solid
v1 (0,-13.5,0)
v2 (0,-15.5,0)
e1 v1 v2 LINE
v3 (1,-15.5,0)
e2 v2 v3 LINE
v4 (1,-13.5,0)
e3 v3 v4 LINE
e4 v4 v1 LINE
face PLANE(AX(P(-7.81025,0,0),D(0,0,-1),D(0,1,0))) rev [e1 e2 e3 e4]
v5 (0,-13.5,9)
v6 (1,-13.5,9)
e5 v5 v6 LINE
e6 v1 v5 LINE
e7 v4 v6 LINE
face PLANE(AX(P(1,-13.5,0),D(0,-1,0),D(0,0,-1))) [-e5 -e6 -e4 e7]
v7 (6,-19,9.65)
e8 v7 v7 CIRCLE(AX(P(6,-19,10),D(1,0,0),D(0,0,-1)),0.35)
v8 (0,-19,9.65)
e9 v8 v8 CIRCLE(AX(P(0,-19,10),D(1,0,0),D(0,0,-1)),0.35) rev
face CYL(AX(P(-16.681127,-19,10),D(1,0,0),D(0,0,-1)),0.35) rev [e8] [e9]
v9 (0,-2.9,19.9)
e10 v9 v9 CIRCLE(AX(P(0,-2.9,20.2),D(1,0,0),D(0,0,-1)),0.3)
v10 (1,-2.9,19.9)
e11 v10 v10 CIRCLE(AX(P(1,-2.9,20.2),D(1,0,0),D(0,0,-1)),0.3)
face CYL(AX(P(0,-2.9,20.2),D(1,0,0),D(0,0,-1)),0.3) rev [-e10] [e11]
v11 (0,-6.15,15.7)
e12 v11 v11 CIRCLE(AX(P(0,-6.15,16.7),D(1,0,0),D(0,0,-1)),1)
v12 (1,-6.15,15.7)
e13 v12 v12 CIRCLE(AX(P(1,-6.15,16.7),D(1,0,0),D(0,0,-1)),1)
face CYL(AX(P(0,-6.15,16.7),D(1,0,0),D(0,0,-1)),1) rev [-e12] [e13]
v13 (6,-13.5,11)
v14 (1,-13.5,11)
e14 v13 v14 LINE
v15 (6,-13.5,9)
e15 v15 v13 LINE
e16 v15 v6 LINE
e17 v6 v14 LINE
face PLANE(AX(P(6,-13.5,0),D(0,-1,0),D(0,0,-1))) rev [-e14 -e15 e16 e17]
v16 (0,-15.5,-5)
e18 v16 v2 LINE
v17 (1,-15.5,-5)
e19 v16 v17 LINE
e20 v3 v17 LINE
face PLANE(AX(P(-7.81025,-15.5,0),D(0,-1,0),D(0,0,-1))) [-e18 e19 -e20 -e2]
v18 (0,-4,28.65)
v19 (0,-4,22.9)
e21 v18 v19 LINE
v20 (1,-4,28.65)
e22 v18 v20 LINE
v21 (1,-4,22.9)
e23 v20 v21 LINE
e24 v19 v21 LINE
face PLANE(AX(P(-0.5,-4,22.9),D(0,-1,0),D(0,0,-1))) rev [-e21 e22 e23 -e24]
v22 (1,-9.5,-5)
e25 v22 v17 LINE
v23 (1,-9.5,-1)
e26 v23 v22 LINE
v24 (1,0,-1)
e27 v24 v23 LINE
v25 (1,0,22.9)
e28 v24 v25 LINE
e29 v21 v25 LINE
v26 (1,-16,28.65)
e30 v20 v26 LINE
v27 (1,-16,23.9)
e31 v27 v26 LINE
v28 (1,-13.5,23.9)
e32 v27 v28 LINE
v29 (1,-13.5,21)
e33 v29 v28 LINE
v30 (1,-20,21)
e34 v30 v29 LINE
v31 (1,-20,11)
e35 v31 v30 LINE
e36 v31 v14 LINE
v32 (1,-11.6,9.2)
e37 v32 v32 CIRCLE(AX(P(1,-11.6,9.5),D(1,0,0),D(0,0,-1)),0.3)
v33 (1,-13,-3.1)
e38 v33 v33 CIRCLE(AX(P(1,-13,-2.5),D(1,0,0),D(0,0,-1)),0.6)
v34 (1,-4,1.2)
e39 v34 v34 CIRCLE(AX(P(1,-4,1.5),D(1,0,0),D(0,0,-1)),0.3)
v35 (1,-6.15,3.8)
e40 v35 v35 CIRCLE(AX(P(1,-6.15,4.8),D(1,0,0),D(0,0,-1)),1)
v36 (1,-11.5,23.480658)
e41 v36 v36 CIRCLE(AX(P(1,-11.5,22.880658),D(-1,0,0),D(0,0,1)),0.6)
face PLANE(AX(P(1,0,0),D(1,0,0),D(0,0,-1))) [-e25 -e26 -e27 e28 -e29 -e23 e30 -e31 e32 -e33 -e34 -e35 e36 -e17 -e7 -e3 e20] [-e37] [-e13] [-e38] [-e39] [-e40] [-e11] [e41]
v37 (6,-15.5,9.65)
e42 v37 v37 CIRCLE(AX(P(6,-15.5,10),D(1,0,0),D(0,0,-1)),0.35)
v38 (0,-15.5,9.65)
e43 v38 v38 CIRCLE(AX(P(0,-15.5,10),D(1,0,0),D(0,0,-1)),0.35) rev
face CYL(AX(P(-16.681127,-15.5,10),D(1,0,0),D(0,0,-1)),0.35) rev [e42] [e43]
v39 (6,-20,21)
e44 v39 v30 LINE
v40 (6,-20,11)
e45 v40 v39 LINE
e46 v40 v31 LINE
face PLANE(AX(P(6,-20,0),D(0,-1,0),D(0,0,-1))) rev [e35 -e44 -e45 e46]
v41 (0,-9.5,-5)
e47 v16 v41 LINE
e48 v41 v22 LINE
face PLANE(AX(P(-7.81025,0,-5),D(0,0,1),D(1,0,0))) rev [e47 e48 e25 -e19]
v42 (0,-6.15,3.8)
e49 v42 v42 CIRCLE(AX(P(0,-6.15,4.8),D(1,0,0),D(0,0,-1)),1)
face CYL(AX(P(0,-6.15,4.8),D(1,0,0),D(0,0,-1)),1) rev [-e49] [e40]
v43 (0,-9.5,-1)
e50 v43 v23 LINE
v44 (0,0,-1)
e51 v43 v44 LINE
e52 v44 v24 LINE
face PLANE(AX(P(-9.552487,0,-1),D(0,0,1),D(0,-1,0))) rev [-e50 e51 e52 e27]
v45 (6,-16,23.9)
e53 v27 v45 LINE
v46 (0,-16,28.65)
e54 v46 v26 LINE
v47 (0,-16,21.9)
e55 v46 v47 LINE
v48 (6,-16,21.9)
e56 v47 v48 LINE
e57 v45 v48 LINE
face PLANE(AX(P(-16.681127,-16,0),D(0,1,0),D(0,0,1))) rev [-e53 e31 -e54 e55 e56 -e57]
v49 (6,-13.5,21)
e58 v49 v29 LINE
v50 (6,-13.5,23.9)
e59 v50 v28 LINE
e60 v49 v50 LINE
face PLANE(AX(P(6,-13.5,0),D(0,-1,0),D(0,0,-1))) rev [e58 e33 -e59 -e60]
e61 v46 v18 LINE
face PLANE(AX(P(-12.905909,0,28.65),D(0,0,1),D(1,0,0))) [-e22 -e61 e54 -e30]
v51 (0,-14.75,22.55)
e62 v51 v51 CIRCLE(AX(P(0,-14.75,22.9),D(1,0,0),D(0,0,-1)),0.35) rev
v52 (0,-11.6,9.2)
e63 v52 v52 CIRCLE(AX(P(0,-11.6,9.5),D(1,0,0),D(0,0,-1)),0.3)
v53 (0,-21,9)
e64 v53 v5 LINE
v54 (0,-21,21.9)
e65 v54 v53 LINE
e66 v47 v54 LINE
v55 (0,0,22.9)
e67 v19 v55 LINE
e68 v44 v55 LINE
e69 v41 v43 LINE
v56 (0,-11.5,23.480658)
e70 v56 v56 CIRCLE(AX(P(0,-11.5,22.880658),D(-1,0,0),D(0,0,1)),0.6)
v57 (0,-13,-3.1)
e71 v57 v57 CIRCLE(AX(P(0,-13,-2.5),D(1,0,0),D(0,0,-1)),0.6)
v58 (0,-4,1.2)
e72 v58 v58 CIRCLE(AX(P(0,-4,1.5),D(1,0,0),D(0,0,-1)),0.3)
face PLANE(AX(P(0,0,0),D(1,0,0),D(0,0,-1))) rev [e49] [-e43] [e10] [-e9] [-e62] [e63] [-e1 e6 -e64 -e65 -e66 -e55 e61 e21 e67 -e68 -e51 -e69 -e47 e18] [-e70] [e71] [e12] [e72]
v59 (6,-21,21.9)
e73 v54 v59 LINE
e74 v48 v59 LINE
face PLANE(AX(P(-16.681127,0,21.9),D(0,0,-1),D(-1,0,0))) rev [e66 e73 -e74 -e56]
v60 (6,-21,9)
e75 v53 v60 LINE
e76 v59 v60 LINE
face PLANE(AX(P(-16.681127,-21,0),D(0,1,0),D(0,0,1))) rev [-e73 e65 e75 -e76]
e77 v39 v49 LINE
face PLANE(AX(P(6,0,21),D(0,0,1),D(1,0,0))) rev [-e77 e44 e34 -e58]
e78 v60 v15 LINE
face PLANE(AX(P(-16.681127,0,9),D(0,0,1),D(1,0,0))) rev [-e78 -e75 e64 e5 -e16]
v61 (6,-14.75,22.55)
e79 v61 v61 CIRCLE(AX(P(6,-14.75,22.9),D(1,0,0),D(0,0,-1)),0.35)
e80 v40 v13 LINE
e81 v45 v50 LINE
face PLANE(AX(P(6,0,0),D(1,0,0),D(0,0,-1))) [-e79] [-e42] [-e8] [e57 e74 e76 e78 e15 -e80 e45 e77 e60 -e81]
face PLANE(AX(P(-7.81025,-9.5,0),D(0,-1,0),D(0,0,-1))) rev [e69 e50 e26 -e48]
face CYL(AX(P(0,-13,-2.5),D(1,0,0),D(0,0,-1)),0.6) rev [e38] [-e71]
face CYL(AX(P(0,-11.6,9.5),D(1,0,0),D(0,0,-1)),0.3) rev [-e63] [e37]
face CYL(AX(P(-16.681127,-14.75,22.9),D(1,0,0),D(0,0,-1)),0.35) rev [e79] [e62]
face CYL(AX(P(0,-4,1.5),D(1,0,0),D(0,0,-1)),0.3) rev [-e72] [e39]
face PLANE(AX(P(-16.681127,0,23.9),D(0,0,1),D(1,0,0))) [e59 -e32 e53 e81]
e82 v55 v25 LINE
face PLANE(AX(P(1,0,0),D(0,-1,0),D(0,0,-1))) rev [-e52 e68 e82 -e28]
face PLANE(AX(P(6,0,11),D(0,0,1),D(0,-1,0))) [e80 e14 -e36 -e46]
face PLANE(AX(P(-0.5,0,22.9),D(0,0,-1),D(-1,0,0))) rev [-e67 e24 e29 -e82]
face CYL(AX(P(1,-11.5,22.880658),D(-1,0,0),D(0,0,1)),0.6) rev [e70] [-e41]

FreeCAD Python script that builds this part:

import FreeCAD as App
import Part
import Sketcher
Q = App.Units.Quantity

doc = App.newDocument("Part")
body = doc.addObject("PartDesign::Body", "Body")

sketch1 = doc.addObject("Sketcher::SketchObject", "Sketch")
body.addObject(sketch1)
sketch1.AttachmentSupport = (doc.YZ_Plane, [""])
sketch1.MapMode = "FlatFace"
sketch1.addGeometry([
    Part.LineSegment(App.Vector(0, 28, 0), App.Vector(-14, 28, 0)),
    Part.LineSegment(App.Vector(-14, 28, 0), App.Vector(-14, 0, 0)),
    Part.LineSegment(App.Vector(-14, 0, 0), App.Vector(0, 0, 0)),
    Part.LineSegment(App.Vector(0, 0, 0), App.Vector(0, 28, 0)),
], False)
sketch1.addConstraint([
    Sketcher.Constraint("Coincident", 0, 2, 1, 1),
    Sketcher.Constraint("Coincident", 1, 2, 2, 1),
    Sketcher.Constraint("Coincident", 2, 2, 3, 1),
    Sketcher.Constraint("Coincident", 3, 2, 0, 1),
    Sketcher.Constraint("Horizontal", 0),
    Sketcher.Constraint("Vertical", 1),
    Sketcher.Constraint("Horizontal", 2),
    Sketcher.Constraint("Vertical", 3),
    Sketcher.Constraint("Coincident", 2, 2, -1, 1),
    Sketcher.Constraint("DistanceY", 1, 2, 1, 1, Q("28 mm")),
    Sketcher.Constraint("DistanceX", 0, 2, 0, 1, Q("13.5 mm")),
])
pad1 = doc.addObject("PartDesign::Pad", "Pad")
body.addObject(pad1)
pad1.Profile = sketch1
pad1.Length = 1

sketch2 = doc.addObject("Sketcher::SketchObject", "Sketch001")
body.addObject(sketch2)
sketch2.AttachmentSupport = (doc.YZ_Plane, [""])
sketch2.MapMode = "FlatFace"
sketch2.AttachmentOffset = App.Placement(App.Vector(0, 0, 1), App.Rotation())
sketch2.addGeometry([
    Part.Circle(App.Vector(-4, 1.5, 0), App.Vector(0, 0, 1), 0.3),
    Part.Circle(App.Vector(-2.9, 20.2, 0), App.Vector(0, 0, 1), 0.3),
    Part.Circle(App.Vector(-11.6, 9.5, 0), App.Vector(0, 0, 1), 0.3),
], False)
sketch2.addConstraint([
    Sketcher.Constraint("Equal", 0, 1),
    Sketcher.Constraint("Equal", 1, 2),
    Sketcher.Constraint("Diameter", 0, Q("0.6 mm")),
    Sketcher.Constraint("DistanceX", 0, 3, -1, 1, Q("4 mm")),
    Sketcher.Constraint("DistanceY", 0, 3, 2, 3, Q("8 mm")),
    Sketcher.Constraint("DistanceY", -1, 1, 0, 3, Q("1.5 mm")),
    Sketcher.Constraint("DistanceX", 1, 3, -1, 1, Q("2.9 mm")),
    Sketcher.Constraint("DistanceY", -1, 1, 1, 3, Q("20.2 mm")),
    Sketcher.Constraint("DistanceX", 2, 3, -1, 1, Q("11.6 mm")),
])
pocket1 = doc.addObject("PartDesign::Pocket", "Pocket")
body.addObject(pocket1)
pocket1.Profile = sketch2
pocket1.Type = "ThroughAll"

sketch3 = doc.addObject("Sketcher::SketchObject", "Sketch002")
body.addObject(sketch3)
sketch3.AttachmentSupport = (doc.YZ_Plane, [""])
sketch3.MapMode = "FlatFace"
sketch3.AttachmentOffset = App.Placement(App.Vector(0, 0, 1), App.Rotation())
sketch3.addGeometry([
    Part.LineSegment(App.Vector(-10, 0, 0), App.Vector(-16, 0, 0)),
    Part.LineSegment(App.Vector(-16, 0, 0), App.Vector(-16, -5, 0)),
    Part.LineSegment(App.Vector(-16, -5, 0), App.Vector(-10, -5, 0)),
    Part.LineSegment(App.Vector(-10, -5, 0), App.Vector(-10, 0, 0)),
], False)
sketch3.addConstraint([
    Sketcher.Constraint("Coincident", 0, 2, 1, 1),
    Sketcher.Constraint("Coincident", 1, 2, 2, 1),
    Sketcher.Constraint("Coincident", 2, 2, 3, 1),
    Sketcher.Constraint("Coincident", 3, 2, 0, 1),
    Sketcher.Constraint("Horizontal", 0),
    Sketcher.Constraint("Vertical", 1),
    Sketcher.Constraint("Horizontal", 2),
    Sketcher.Constraint("Vertical", 3),
    Sketcher.Constraint("PointOnObject", 0, 2, -1),
    Sketcher.Constraint("DistanceX", 0, 2, 0, 1, Q("6 mm")),
    Sketcher.Constraint("DistanceY", 1, 2, 1, 1, Q("5 mm")),
    Sketcher.Constraint("DistanceX", 0, 2, -1, 1, Q("15.5 mm")),
])
pad2 = doc.addObject("PartDesign::Pad", "Pad001")
body.addObject(pad2)
pad2.Profile = sketch3
pad2.Length = 1
pad2.Reversed = True

sketch4 = doc.addObject("Sketcher::SketchObject", "Sketch003")
body.addObject(sketch4)
sketch4.AttachmentSupport = (doc.YZ_Plane, [""])
sketch4.MapMode = "FlatFace"
sketch4.AttachmentOffset = App.Placement(App.Vector(0, 0, 1), App.Rotation())
sketch4.addGeometry(Part.Circle(App.Vector(-13, -2.5, 0), App.Vector(0, 0, 1), 0.6), False)
sketch4.addConstraint([
    Sketcher.Constraint("Diameter", 0, Q("1.2 mm")),
    Sketcher.Constraint("DistanceX", 0, 3, -1, 1, Q("13 mm")),
    Sketcher.Constraint("DistanceY", 0, 3, -1, 1, Q("2.5 mm")),
])
pocket2 = doc.addObject("PartDesign::Pocket", "Pocket001")
body.addObject(pocket2)
pocket2.Profile = sketch4
pocket2.Type = "ThroughAll"

sketch5 = doc.addObject("Sketcher::SketchObject", "Sketch004")
body.addObject(sketch5)
sketch5.AttachmentSupport = (doc.YZ_Plane, [""])
sketch5.MapMode = "FlatFace"
sketch5.AttachmentOffset = App.Placement(App.Vector(0, 0, 1), App.Rotation())
sketch5.addGeometry([
    Part.Circle(App.Vector(-6.2, 4.8, 0), App.Vector(0, 0, 1), 1),
    Part.Circle(App.Vector(-6.2, 16.7, 0), App.Vector(0, 0, 1), 1),
], False)
sketch5.addConstraint([
    Sketcher.Constraint("Equal", 0, 1),
    Sketcher.Constraint("Vertical", 0, 3, 1, 3),
    Sketcher.Constraint("Diameter", 0, Q("2 mm")),
    Sketcher.Constraint("DistanceY", -1, 1, 0, 3, Q("4.8 mm")),
    Sketcher.Constraint("DistanceY", -1, 1, 1, 3, Q("16.7 mm")),
    Sketcher.Constraint("DistanceX", 0, 3, -1, 1, Q("6.15 mm")),
])
pocket3 = doc.addObject("PartDesign::Pocket", "Pocket002")
body.addObject(pocket3)
pocket3.Profile = sketch5
pocket3.Type = "ThroughAll"

sketch6 = doc.addObject("Sketcher::SketchObject", "Sketch005")
body.addObject(sketch6)
sketch6.AttachmentSupport = (doc.YZ_Plane, [""])
sketch6.MapMode = "FlatFace"
sketch6.AttachmentOffset = App.Placement(App.Vector(0, 0, 1), App.Rotation())
sketch6.addGeometry([
    Part.LineSegment(App.Vector(0, 29.9, 0), App.Vector(-4, 29.9, 0)),
    Part.LineSegment(App.Vector(-4, 29.9, 0), App.Vector(-4, 22.9, 0)),
    Part.LineSegment(App.Vector(-4, 22.9, 0), App.Vector(0, 22.9, 0)),
    Part.LineSegment(App.Vector(0, 22.9, 0), App.Vector(0, 29.9, 0)),
], False)
sketch6.addConstraint([
    Sketcher.Constraint("Coincident", 0, 2, 1, 1),
    Sketcher.Constraint("Coincident", 1, 2, 2, 1),
    Sketcher.Constraint("Coincident", 2, 2, 3, 1),
    Sketcher.Constraint("Coincident", 3, 2, 0, 1),
    Sketcher.Constraint("Horizontal", 0),
    Sketcher.Constraint("Vertical", 1),
    Sketcher.Constraint("Horizontal", 2),
    Sketcher.Constraint("Vertical", 3),
    Sketcher.Constraint("PointOnObject", 2, 2, -2),
    Sketcher.Constraint("DistanceX", 0, 2, 0, 1, Q("4 mm")),
    Sketcher.Constraint("DistanceY", 1, 2, 1, 1, Q("7 mm")),
    Sketcher.Constraint("DistanceY", -1, 1, 0, 2, Q("29.9 mm")),
])
pocket4 = doc.addObject("PartDesign::Pocket", "Pocket003")
body.addObject(pocket4)
pocket4.Profile = sketch6
pocket4.Length = 1.5

sketch7 = doc.addObject("Sketcher::SketchObject", "Sketch006")
body.addObject(sketch7)
sketch7.AttachmentSupport = (doc.YZ_Plane, [""])
sketch7.MapMode = "FlatFace"
sketch7.addGeometry(Part.Circle(App.Vector(-11.5, 22.9, 0), App.Vector(0, 0, 1), 0.6), False)
sketch7.addConstraint([
    Sketcher.Constraint("Diameter", 0, Q("1.2 mm")),
    Sketcher.Constraint("DistanceX", 0, 3, -1, 1, Q("11.5 mm")),
    Sketcher.Constraint("DistanceY", -1, 1, 0, 3, Q("22.880658 mm")),
])
pocket5 = doc.addObject("PartDesign::Pocket", "Pocket004")
body.addObject(pocket5)
pocket5.Profile = sketch7
pocket5.Type = "ThroughAll"
pocket5.Reversed = True

sketch8 = doc.addObject("Sketcher::SketchObject", "Sketch007")
body.addObject(sketch8)
sketch8.AttachmentSupport = (doc.YZ_Plane, [""])
sketch8.MapMode = "FlatFace"
sketch8.AttachmentOffset = App.Placement(App.Vector(0, 0, 1), App.Rotation())
sketch8.addGeometry([
    Part.LineSegment(App.Vector(0, 0, 0), App.Vector(-9.5, 0, 0)),
    Part.LineSegment(App.Vector(-9.5, 0, 0), App.Vector(-9.5, -1, 0)),
    Part.LineSegment(App.Vector(-9.5, -1, 0), App.Vector(0, -1, 0)),
    Part.LineSegment(App.Vector(0, -1, 0), App.Vector(0, 0, 0)),
], False)
sketch8.addConstraint([
    Sketcher.Constraint("Coincident", 0, 2, 1, 1),
    Sketcher.Constraint("Coincident", 1, 2, 2, 1),
    Sketcher.Constraint("Coincident", 2, 2, 3, 1),
    Sketcher.Constraint("Coincident", 3, 2, 0, 1),
    Sketcher.Constraint("Horizontal", 0),
    Sketcher.Constraint("Vertical", 1),
    Sketcher.Constraint("Horizontal", 2),
    Sketcher.Constraint("Vertical", 3),
    Sketcher.Constraint("Coincident", 3, 2, -1, 1),
    Sketcher.Constraint("DistanceY", 1, 2, 1, 1, Q("1 mm")),
    Sketcher.Constraint("DistanceX", 0, 2, 0, 1, Q("9.5 mm")),
])
pad3 = doc.addObject("PartDesign::Pad", "Pad002")
body.addObject(pad3)
pad3.Profile = sketch8
pad3.Length = 1
pad3.Reversed = True

sketch9 = doc.addObject("Sketcher::SketchObject", "Sketch008")
body.addObject(sketch9)
sketch9.AttachmentSupport = (doc.YZ_Plane, [""])
sketch9.MapMode = "FlatFace"
sketch9.AttachmentOffset = App.Placement(App.Vector(0, 0, 1), App.Rotation())
sketch9.addGeometry([
    Part.LineSegment(App.Vector(-10, 11, 0), App.Vector(-10, 21, 0)),
    Part.LineSegment(App.Vector(-10, 21, 0), App.Vector(-13.5, 21, 0)),
    Part.LineSegment(App.Vector(-13.5, 21, 0), App.Vector(-13.5, 23.9, 0)),
    Part.LineSegment(App.Vector(-13.5, 23.9, 0), App.Vector(-16, 23.9, 0)),
    Part.LineSegment(App.Vector(-16, 23.9, 0), App.Vector(-16, 21.9, 0)),
    Part.LineSegment(App.Vector(-16, 21.9, 0), App.Vector(-21, 21.9, 0)),
    Part.LineSegment(App.Vector(-21, 21.9, 0), App.Vector(-21, 9, 0)),
    Part.LineSegment(App.Vector(-21, 9, 0), App.Vector(-13.5, 9, 0)),
    Part.LineSegment(App.Vector(-13.5, 9, 0), App.Vector(-13.5, 11, 0)),
    Part.LineSegment(App.Vector(-13.5, 11, 0), App.Vector(-10, 11, 0)),
    Part.Circle(App.Vector(-15.5, 10, 0), App.Vector(0, 0, 1), 0.35),
    Part.Circle(App.Vector(-19, 10, 0), App.Vector(0, 0, 1), 0.35),
    Part.Circle(App.Vector(-14.75, 22.9, 0), App.Vector(0, 0, 1), 0.35),
], False)
sketch9.addConstraint([
    Sketcher.Constraint("Coincident", 0, 2, 1, 1),
    Sketcher.Constraint("Coincident", 1, 2, 2, 1),
    Sketcher.Constraint("Coincident", 2, 2, 3, 1),
    Sketcher.Constraint("Coincident", 3, 2, 4, 1),
    Sketcher.Constraint("Coincident", 4, 2, 5, 1),
    Sketcher.Constraint("Coincident", 5, 2, 6, 1),
    Sketcher.Constraint("Coincident", 6, 2, 7, 1),
    Sketcher.Constraint("Coincident", 7, 2, 8, 1),
    Sketcher.Constraint("Coincident", 8, 2, 9, 1),
    Sketcher.Constraint("Coincident", 9, 2, 0, 1),
    Sketcher.Constraint("Vertical", 0),
    Sketcher.Constraint("Horizontal", 1),
    Sketcher.Constraint("Vertical", 2),
    Sketcher.Constraint("Horizontal", 3),
    Sketcher.Constraint("Vertical", 4),
    Sketcher.Constraint("Horizontal", 5),
    Sketcher.Constraint("Vertical", 6),
    Sketcher.Constraint("Horizontal", 7),
    Sketcher.Constraint("Vertical", 8),
    Sketcher.Constraint("Horizontal", 9),
    Sketcher.Constraint("Equal", 10, 11),
    Sketcher.Constraint("Equal", 11, 12),
    Sketcher.Constraint("Horizontal", 10, 3, 11, 3),
    Sketcher.Constraint("Vertical", 2, 2, 7, 2),
    Sketcher.Constraint("Equal", 4, 8),
    Sketcher.Constraint("Diameter", 10, Q("0.7 mm")),
    Sketcher.Constraint("DistanceX", 5, 2, 5, 1, Q("5 mm")),
    Sketcher.Constraint("DistanceY", 0, 1, 0, 2, Q("10 mm")),
    Sketcher.Constraint("DistanceY", 4, 2, 4, 1, Q("2 mm")),
    Sketcher.Constraint("DistanceX", 1, 2, 1, 1, Q("3.5 mm")),
    Sketcher.Constraint("DistanceX", 3, 2, 3, 1, Q("2.5 mm")),
    Sketcher.Constraint("DistanceY", 2, 1, 2, 2, Q("2.9 mm")),
    Sketcher.Constraint("DistanceY", -1, 1, 10, 3, Q("10 mm")),
    Sketcher.Constraint("DistanceX", 11, 3, -1, 1, Q("19 mm")),
    Sketcher.Constraint("DistanceX", 0, 2, -1, 1, Q("10 mm")),
    Sketcher.Constraint("DistanceY", -1, 1, 0, 2, Q("21 mm")),
    Sketcher.Constraint("DistanceX", 10, 3, 1, 2, Q("2 mm")),
    Sketcher.Constraint("DistanceY", 12, 3, 2, 2, Q("1 mm")),
    Sketcher.Constraint("DistanceX", 12, 3, -1, 1, Q("14.75 mm")),
])
pad4 = doc.addObject("PartDesign::Pad", "Pad003")
body.addObject(pad4)
pad4.Profile = sketch9
pad4.Length = 1
pad4.Reversed = True

sketch10 = doc.addObject("Sketcher::SketchObject", "Sketch009")
body.addObject(sketch10)
sketch10.AttachmentSupport = (doc.YZ_Plane, [""])
sketch10.MapMode = "FlatFace"
sketch10.AttachmentOffset = App.Placement(App.Vector(0, 0, 6), App.Rotation())
sketch10.addGeometry([
    Part.LineSegment(App.Vector(-13.5, 21, 0), App.Vector(-13.5, 23.9, 0)),
    Part.LineSegment(App.Vector(-13.5, 23.9, 0), App.Vector(-16, 23.9, 0)),
    Part.LineSegment(App.Vector(-16, 23.9, 0), App.Vector(-16, 21.9, 0)),
    Part.LineSegment(App.Vector(-16, 21.9, 0), App.Vector(-21, 21.9, 0)),
    Part.LineSegment(App.Vector(-21, 21.9, 0), App.Vector(-21, 9, 0)),
    Part.LineSegment(App.Vector(-21, 9, 0), App.Vector(-13.5, 9, 0)),
    Part.LineSegment(App.Vector(-13.5, 9, 0), App.Vector(-13.5, 11, 0)),
    Part.LineSegment(App.Vector(-13.5, 11, 0), App.Vector(-20, 11, 0)),
    Part.LineSegment(App.Vector(-20, 11, 0), App.Vector(-20, 21, 0)),
    Part.LineSegment(App.Vector(-20, 21, 0), App.Vector(-13.5, 21, 0)),
    Part.Circle(App.Vector(-14.75, 22.9, 0), App.Vector(0, 0, 1), 0.35),
    Part.Circle(App.Vector(-15.5, 10, 0), App.Vector(0, 0, 1), 0.35),
    Part.Circle(App.Vector(-19, 10, 0), App.Vector(0, 0, 1), 0.35),
], False)
sketch10.addConstraint([
    Sketcher.Constraint("Coincident", 0, 2, 1, 1),
    Sketcher.Constraint("Coincident", 1, 2, 2, 1),
    Sketcher.Constraint("Coincident", 2, 2, 3, 1),
    Sketcher.Constraint("Coincident", 3, 2, 4, 1),
    Sketcher.Constraint("Coincident", 4, 2, 5, 1),
    Sketcher.Constraint("Coincident", 5, 2, 6, 1),
    Sketcher.Constraint("Coincident", 6, 2, 7, 1),
    Sketcher.Constraint("Coincident", 7, 2, 8, 1),
    Sketcher.Constraint("Coincident", 8, 2, 9, 1),
    Sketcher.Constraint("Coincident", 9, 2, 0, 1),
    Sketcher.Constraint("Vertical", 0),
    Sketcher.Constraint("Horizontal", 1),
    Sketcher.Constraint("Vertical", 2),
    Sketcher.Constraint("Horizontal", 3),
    Sketcher.Constraint("Vertical", 4),
    Sketcher.Constraint("Horizontal", 5),
    Sketcher.Constraint("Vertical", 6),
    Sketcher.Constraint("Horizontal", 7),
    Sketcher.Constraint("Vertical", 8),
    Sketcher.Constraint("Horizontal", 9),
    Sketcher.Constraint("Equal", 10, 11),
    Sketcher.Constraint("Equal", 11, 12),
    Sketcher.Constraint("Horizontal", 11, 3, 12, 3),
    Sketcher.Constraint("Vertical", 0, 2, 5, 2),
    Sketcher.Constraint("Equal", 2, 6),
    Sketcher.Constraint("Diameter", 10, Q("0.7 mm")),
    Sketcher.Constraint("DistanceX", 3, 2, 3, 1, Q("5 mm")),
    Sketcher.Constraint("DistanceY", 2, 2, 2, 1, Q("2 mm")),
    Sketcher.Constraint("DistanceY", 8, 1, 8, 2, Q("10 mm")),
    Sketcher.Constraint("DistanceX", 1, 2, 1, 1, Q("2.5 mm")),
    Sketcher.Constraint("DistanceX", 7, 2, 7, 1, Q("6.5 mm")),
    Sketcher.Constraint("DistanceY", 0, 1, 0, 2, Q("2.9 mm")),
    Sketcher.Constraint("DistanceY", -1, 1, 11, 3, Q("10 mm")),
    Sketcher.Constraint("DistanceX", 12, 3, -1, 1, Q("19 mm")),
    Sketcher.Constraint("DistanceX", 1, 2, -1, 1, Q("16 mm")),
    Sketcher.Constraint("DistanceY", -1, 1, 4, 2, Q("9 mm")),
    Sketcher.Constraint("DistanceY", 10, 3, 0, 2, Q("1 mm")),
    Sketcher.Constraint("DistanceX", 11, 3, 0, 2, Q("2 mm")),
    Sketcher.Constraint("DistanceX", 10, 3, -1, 1, Q("14.75 mm")),
])
pad5 = doc.addObject("PartDesign::Pad", "Pad004")
body.addObject(pad5)
pad5.Profile = sketch10
pad5.Length = 5
pad5.Reversed = True

sketch11 = doc.addObject("Sketcher::SketchObject", "Sketch010")
body.addObject(sketch11)
sketch11.AttachmentSupport = (doc.YZ_Plane, [""])
sketch11.MapMode = "FlatFace"
sketch11.AttachmentOffset = App.Placement(App.Vector(0, 0, 1), App.Rotation())
sketch11.addGeometry([
    Part.LineSegment(App.Vector(-4, 28.6, 0), App.Vector(-16, 28.6, 0)),
    Part.LineSegment(App.Vector(-16, 28.6, 0), App.Vector(-16, 23.9, 0)),
    Part.LineSegment(App.Vector(-16, 23.9, 0), App.Vector(-13.5, 23.9, 0)),
    Part.LineSegment(App.Vector(-13.5, 23.9, 0), App.Vector(-13.5, 28, 0)),
    Part.LineSegment(App.Vector(-13.5, 28, 0), App.Vector(-4, 28, 0)),
    Part.LineSegment(App.Vector(-4, 28, 0), App.Vector(-4, 28.6, 0)),
], False)
sketch11.addConstraint([
    Sketcher.Constraint("Coincident", 0, 2, 1, 1),
    Sketcher.Constraint("Coincident", 1, 2, 2, 1),
    Sketcher.Constraint("Coincident", 2, 2, 3, 1),
    Sketcher.Constraint("Coincident", 3, 2, 4, 1),
    Sketcher.Constraint("Coincident", 4, 2, 5, 1),
    Sketcher.Constraint("Coincident", 5, 2, 0, 1),
    Sketcher.Constraint("Horizontal", 0),
    Sketcher.Constraint("Vertical", 1),
    Sketcher.Constraint("Horizontal", 2),
    Sketcher.Constraint("Vertical", 3),
    Sketcher.Constraint("Horizontal", 4),
    Sketcher.Constraint("Vertical", 5),
    Sketcher.Constraint("DistanceX", 0, 2, 0, 1, Q("12 mm")),
    Sketcher.Constraint("DistanceX", 2, 1, 2, 2, Q("2.5 mm")),
    Sketcher.Constraint("DistanceY", 3, 1, 3, 2, Q("4.1 mm")),
    Sketcher.Constraint("DistanceX", 0, 2, -1, 1, Q("16 mm")),
    Sketcher.Constraint("DistanceY", -1, 1, 3, 2, Q("28 mm")),
    Sketcher.Constraint("DistanceY", 1, 2, 1, 1, Q("4.75 mm")),
])
pad6 = doc.addObject("PartDesign::Pad", "Pad005")
body.addObject(pad6)
pad6.Profile = sketch11
pad6.Length = 1
pad6.Reversed = True

doc.recompute()
